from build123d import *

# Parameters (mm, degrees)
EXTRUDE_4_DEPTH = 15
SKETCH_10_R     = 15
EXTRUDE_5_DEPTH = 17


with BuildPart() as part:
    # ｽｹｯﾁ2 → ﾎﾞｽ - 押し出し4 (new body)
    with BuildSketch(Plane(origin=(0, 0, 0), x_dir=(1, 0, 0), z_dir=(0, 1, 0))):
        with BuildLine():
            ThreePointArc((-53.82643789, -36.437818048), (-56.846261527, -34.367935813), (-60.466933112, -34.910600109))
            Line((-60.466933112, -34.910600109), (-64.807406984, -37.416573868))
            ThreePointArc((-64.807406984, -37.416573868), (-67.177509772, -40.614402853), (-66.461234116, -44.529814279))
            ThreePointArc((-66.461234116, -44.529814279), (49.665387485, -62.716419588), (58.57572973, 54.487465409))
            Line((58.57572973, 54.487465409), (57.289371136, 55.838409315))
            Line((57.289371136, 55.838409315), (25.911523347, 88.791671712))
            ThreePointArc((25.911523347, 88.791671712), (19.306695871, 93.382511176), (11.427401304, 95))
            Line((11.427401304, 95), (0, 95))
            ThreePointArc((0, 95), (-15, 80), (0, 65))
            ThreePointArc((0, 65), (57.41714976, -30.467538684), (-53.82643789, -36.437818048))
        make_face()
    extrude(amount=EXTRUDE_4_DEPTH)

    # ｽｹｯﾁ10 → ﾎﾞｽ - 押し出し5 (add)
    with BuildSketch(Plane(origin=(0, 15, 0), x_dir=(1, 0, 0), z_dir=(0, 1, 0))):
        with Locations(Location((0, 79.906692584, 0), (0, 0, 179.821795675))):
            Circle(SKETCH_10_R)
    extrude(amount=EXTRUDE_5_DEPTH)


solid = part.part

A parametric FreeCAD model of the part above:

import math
import FreeCAD as App
import Part
import Sketcher

V = App.Vector
Q = App.Units.Quantity

doc = App.newDocument("Part")
body = doc.addObject("PartDesign::Body", "Body")

sketch1 = body.newObject("Sketcher::SketchObject", "Sketch")
sketch1.AttachmentSupport = (doc.getObject("XZ_Plane"), [""])
sketch1.MapMode = "FlatFace"
sketch1.addGeometry([
    Part.ArcOfCircle(Part.Circle(V(-58, 39.2, 0), V(0, 0, 1), 5), math.radians(-120), math.radians(-34)),
    Part.LineSegment(V(-60.5, 34.9, 0), V(-64.8, 37.4, 0)),
    Part.ArcOfCircle(Part.Circle(V(-62.3, 41.7, 0), V(0, 0, 1), 5), math.radians(146), math.radians(240)),
    Part.ArcOfCircle(Part.Circle(V(0, 0, 0), V(0, 0, 1), 80), math.radians(-43), math.radians(146)),
    Part.LineSegment(V(58.6, -54.5, 0), V(57.3, -55.8, 0)),
    Part.LineSegment(V(57.3, -55.8, 0), V(25.9, -88.8, 0)),
    Part.ArcOfCircle(Part.Circle(V(11.4, -75, 0), V(0, 0, 1), 20), math.radians(-90), math.radians(-44)),
    Part.LineSegment(V(11.4, -95, 0), V(0, -95, 0)),
    Part.ArcOfCircle(Part.Circle(V(0, -80, 0), V(0, 0, 1), 15), math.radians(90), math.radians(270)),
    Part.ArcOfCircle(Part.Circle(V(0, 0, 0), V(0, 0, 1), 65), math.radians(-90), math.radians(146)),
], False)
sketch1.addConstraint([
    Sketcher.Constraint("Tangent", 0, 1, 1, 1),
    Sketcher.Constraint("Tangent", 1, 2, 2, 2),
    Sketcher.Constraint("Tangent", 2, 1, 3, 2),
    Sketcher.Constraint("Coincident", 3, 1, 4, 1),
    Sketcher.Constraint("Coincident", 4, 2, 5, 1),
    Sketcher.Constraint("Tangent", 5, 2, 6, 2),
    Sketcher.Constraint("Tangent", 6, 1, 7, 1),
    Sketcher.Constraint("Tangent", 7, 2, 8, 2),
    Sketcher.Constraint("Tangent", 8, 1, 9, 1),
    Sketcher.Constraint("Tangent", 9, 2, 0, 2),
    Sketcher.Constraint("Horizontal", 7),
    Sketcher.Constraint("Coincident", 3, 3, -1, 1),
    Sketcher.Constraint("Coincident", 9, 3, -1, 1),
    Sketcher.Constraint("Equal", 0, 2),
    Sketcher.Constraint("PointOnObject", 8, 3, -2),
    Sketcher.Constraint("Parallel", 4, 5),
    Sketcher.Constraint("Radius", 0, 5.0),
    Sketcher.Constraint("Radius", 3, 80.0),
    Sketcher.Constraint("Radius", 6, 20.0),
    Sketcher.Constraint("Radius", 8, 15.0),
    Sketcher.Constraint("Radius", 9, 65.0),
    Sketcher.Constraint("Angle", 1, Q("150 deg")),
    Sketcher.Constraint("DistanceX", 7, 2, 7, 1, 11.427401),
    Sketcher.Constraint("DistanceY", -1, 1, 2, 3, 41.746701),
    Sketcher.Constraint("DistanceX", -1, 1, 3, 1, 58.57573),
    Sketcher.Constraint("DistanceX", -1, 1, 4, 2, 57.289371),
])
pad1 = body.newObject("PartDesign::Pad", "Pad")
pad1.Profile = sketch1
pad1.Length = 15
pad1.Reversed = True

sketch2 = body.newObject("Sketcher::SketchObject", "Sketch001")
sketch2.AttachmentSupport = (doc.getObject("XZ_Plane"), [""])
sketch2.MapMode = "FlatFace"
sketch2.AttachmentOffset = App.Placement(V(0, 0, -15), App.Rotation())
sketch2.addGeometry(Part.Circle(V(0, -80, 0), V(0, 0, 1), 15), False)
sketch2.addConstraint([
    Sketcher.Constraint("PointOnObject", 0, 3, -2),
    Sketcher.Constraint("Diameter", 0, 30.0),
    Sketcher.Constraint("DistanceY", 0, 3, -1, 1, 79.906693),
])
pad2 = body.newObject("PartDesign::Pad", "Pad001")
pad2.Profile = sketch2
pad2.Length = 17
pad2.Reversed = True

doc.recompute()
